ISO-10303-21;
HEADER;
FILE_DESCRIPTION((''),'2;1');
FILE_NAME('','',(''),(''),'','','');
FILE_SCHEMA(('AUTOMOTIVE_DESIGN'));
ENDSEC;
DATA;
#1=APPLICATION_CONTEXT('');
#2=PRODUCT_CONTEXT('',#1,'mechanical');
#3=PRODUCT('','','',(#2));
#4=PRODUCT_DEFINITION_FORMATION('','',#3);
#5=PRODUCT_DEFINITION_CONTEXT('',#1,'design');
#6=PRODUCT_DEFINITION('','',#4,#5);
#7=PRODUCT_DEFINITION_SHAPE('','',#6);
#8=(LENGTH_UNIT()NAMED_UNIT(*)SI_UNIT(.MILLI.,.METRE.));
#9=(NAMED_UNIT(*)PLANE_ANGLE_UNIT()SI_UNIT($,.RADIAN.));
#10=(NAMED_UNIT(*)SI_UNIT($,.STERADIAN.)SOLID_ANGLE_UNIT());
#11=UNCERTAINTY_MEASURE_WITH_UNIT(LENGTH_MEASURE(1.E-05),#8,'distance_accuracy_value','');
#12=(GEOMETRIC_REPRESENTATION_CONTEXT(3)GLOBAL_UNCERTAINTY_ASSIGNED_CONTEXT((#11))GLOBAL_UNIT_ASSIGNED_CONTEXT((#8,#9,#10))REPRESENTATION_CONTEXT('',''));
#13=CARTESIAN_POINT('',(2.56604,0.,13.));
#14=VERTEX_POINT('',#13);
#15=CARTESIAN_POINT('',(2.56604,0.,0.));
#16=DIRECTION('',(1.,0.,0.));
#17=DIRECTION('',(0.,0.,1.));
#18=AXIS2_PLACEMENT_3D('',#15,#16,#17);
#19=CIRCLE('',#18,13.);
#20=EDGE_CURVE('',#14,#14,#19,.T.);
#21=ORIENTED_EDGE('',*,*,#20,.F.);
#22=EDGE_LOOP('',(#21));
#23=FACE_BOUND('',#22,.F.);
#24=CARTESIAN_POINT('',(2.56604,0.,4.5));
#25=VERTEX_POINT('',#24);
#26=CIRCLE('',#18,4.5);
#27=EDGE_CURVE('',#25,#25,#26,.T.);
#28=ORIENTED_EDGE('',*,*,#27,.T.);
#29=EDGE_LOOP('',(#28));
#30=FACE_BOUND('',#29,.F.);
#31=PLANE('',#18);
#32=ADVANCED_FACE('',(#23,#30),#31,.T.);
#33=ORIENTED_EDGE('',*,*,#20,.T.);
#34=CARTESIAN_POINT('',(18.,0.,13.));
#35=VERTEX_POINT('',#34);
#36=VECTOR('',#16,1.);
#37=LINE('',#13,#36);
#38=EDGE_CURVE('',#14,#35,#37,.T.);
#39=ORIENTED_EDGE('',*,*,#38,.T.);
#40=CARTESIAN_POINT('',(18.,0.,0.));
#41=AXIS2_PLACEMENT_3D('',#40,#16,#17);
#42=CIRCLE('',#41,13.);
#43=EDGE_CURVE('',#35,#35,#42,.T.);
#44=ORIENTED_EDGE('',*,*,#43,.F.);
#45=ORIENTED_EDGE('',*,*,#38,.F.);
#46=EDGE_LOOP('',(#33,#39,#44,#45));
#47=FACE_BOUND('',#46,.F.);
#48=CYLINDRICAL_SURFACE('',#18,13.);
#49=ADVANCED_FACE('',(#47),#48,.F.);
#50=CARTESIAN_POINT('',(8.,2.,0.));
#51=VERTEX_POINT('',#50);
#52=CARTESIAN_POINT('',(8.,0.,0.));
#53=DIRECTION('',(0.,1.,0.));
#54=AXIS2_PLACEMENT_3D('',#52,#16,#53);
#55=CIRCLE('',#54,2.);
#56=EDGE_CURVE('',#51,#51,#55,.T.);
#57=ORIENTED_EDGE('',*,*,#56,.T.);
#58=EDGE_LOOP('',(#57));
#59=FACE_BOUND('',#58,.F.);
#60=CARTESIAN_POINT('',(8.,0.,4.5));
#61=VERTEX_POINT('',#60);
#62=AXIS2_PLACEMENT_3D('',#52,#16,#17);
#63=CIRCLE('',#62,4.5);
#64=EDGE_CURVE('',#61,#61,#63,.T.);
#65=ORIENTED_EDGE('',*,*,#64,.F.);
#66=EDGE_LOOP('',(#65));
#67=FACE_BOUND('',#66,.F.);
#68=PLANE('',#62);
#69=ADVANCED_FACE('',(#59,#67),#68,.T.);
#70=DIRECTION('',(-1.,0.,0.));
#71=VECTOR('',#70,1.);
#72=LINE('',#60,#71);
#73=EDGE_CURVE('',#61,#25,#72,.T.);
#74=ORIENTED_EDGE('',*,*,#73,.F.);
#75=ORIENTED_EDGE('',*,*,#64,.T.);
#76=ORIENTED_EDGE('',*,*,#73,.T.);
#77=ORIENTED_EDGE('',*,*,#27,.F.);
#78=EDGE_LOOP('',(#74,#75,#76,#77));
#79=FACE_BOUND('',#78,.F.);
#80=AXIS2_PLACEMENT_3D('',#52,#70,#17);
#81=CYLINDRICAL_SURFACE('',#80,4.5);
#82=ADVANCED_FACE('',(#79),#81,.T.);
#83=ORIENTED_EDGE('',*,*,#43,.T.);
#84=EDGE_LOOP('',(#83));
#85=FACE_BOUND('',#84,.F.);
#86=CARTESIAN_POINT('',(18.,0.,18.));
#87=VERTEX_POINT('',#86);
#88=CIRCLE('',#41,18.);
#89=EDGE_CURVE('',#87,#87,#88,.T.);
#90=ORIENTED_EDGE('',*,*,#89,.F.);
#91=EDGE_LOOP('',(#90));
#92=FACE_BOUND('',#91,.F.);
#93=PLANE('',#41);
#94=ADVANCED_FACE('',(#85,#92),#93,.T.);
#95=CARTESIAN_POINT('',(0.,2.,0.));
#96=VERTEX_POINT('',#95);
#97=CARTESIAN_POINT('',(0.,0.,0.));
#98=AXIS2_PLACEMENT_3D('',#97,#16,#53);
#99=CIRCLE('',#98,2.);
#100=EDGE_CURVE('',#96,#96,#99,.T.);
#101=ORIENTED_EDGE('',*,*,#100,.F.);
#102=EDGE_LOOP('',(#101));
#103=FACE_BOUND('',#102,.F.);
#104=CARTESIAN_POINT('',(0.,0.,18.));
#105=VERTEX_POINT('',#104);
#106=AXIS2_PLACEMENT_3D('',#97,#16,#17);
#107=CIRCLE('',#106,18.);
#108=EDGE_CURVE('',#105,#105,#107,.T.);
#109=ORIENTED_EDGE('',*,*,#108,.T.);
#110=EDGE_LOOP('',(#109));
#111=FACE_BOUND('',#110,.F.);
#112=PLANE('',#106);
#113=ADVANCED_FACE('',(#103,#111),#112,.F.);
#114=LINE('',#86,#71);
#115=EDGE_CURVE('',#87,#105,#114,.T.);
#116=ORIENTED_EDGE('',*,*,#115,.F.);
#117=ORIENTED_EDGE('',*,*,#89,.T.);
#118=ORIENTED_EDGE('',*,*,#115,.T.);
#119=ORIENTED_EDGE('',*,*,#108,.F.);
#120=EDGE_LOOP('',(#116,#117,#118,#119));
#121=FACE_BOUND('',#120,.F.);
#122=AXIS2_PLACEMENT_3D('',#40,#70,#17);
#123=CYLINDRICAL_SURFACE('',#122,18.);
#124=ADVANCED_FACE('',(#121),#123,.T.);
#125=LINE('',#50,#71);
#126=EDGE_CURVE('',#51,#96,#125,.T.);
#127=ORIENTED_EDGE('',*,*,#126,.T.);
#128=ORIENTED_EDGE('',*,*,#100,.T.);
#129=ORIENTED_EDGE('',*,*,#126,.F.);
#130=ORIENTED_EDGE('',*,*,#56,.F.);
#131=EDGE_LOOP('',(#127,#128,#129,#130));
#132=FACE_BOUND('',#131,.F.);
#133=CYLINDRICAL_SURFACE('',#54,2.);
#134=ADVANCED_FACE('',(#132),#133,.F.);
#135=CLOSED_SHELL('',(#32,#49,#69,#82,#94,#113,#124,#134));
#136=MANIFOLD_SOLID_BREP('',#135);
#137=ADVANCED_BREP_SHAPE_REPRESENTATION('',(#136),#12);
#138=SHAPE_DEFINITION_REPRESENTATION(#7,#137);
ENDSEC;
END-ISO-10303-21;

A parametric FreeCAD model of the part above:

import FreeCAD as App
import Part
import Sketcher
from FreeCAD import Vector

doc = App.newDocument("Part")
body = doc.addObject("PartDesign::Body", "Body")

sketch1 = doc.addObject("Sketcher::SketchObject", "Sketch")
body.addObject(sketch1)
sketch1.AttachmentSupport = (doc.XZ_Plane, [""])
sketch1.MapMode = "FlatFace"
sketch1.addGeometry(Part.LineSegment(Vector(0, 18, 0), Vector(0, 0, 0)), False)
sketch1.addGeometry(Part.LineSegment(Vector(0, 0, 0), Vector(8, 0, 0)), False)
sketch1.addGeometry(Part.LineSegment(Vector(8, 0, 0), Vector(8, 4.5, 0)), False)
sketch1.addGeometry(Part.LineSegment(Vector(8, 4.5, 0), Vector(2.6, 4.5, 0)), False)
sketch1.addGeometry(Part.LineSegment(Vector(2.6, 4.5, 0), Vector(2.6, 13, 0)), False)
sketch1.addGeometry(Part.LineSegment(Vector(2.6, 13, 0), Vector(18, 13, 0)), False)
sketch1.addGeometry(Part.LineSegment(Vector(18, 13, 0), Vector(18, 18, 0)), False)
sketch1.addGeometry(Part.LineSegment(Vector(18, 18, 0), Vector(0, 18, 0)), False)
sketch1.addConstraint(Sketcher.Constraint("Coincident", 0, 2, 1, 1))
sketch1.addConstraint(Sketcher.Constraint("Coincident", 1, 2, 2, 1))
sketch1.addConstraint(Sketcher.Constraint("Coincident", 2, 2, 3, 1))
sketch1.addConstraint(Sketcher.Constraint("Coincident", 3, 2, 4, 1))
sketch1.addConstraint(Sketcher.Constraint("Coincident", 4, 2, 5, 1))
sketch1.addConstraint(Sketcher.Constraint("Coincident", 5, 2, 6, 1))
sketch1.addConstraint(Sketcher.Constraint("Coincident", 6, 2, 7, 1))
sketch1.addConstraint(Sketcher.Constraint("Coincident", 7, 2, 0, 1))
sketch1.addConstraint(Sketcher.Constraint("Vertical", 0))
sketch1.addConstraint(Sketcher.Constraint("Horizontal", 1))
sketch1.addConstraint(Sketcher.Constraint("Vertical", 2))
sketch1.addConstraint(Sketcher.Constraint("Horizontal", 3))
sketch1.addConstraint(Sketcher.Constraint("Vertical", 4))
sketch1.addConstraint(Sketcher.Constraint("Horizontal", 5))
sketch1.addConstraint(Sketcher.Constraint("Vertical", 6))
sketch1.addConstraint(Sketcher.Constraint("Horizontal", 7))
sketch1.addConstraint(Sketcher.Constraint("Coincident", 0, 2, -1, 1))
sketch1.addConstraint(Sketcher.Constraint("Equal", 7, 0))
sketch1.addConstraint(Sketcher.Constraint("DistanceX", 1, 1, 1, 2, 8.0))
sketch1.addConstraint(Sketcher.Constraint("DistanceX", 7, 2, 7, 1, 18.0))
sketch1.addConstraint(Sketcher.Constraint("DistanceY", 6, 1, 6, 2, 5.0))
sketch1.addConstraint(Sketcher.Constraint("DistanceY", 2, 1, 2, 2, 4.5))
sketch1.addConstraint(Sketcher.Constraint("DistanceX", 3, 2, 3, 1, 5.43396))
revolution = doc.addObject("PartDesign::Revolution", "Revolution")
body.addObject(revolution)
revolution.Profile = sketch1
revolution.ReferenceAxis = (sketch1, ["H_Axis"])
revolution.Angle = 360

sketch2 = doc.addObject("Sketcher::SketchObject", "Sketch001")
body.addObject(sketch2)
sketch2.AttachmentSupport = (doc.YZ_Plane, [""])
sketch2.MapMode = "FlatFace"
sketch2.AttachmentOffset = App.Placement(Vector(0, 0, 8), App.Rotation())
sketch2.addGeometry(Part.Circle(Vector(0, 0, 0), Vector(0, 0, 1), 2), False)
sketch2.addConstraint(Sketcher.Constraint("Coincident", 0, 3, -1, 1))
sketch2.addConstraint(Sketcher.Constraint("Diameter", 0, 4.0))
pocket1 = doc.addObject("PartDesign::Pocket", "Pocket")
body.addObject(pocket1)
pocket1.Profile = sketch2
pocket1.Length = 25

doc.recompute()
